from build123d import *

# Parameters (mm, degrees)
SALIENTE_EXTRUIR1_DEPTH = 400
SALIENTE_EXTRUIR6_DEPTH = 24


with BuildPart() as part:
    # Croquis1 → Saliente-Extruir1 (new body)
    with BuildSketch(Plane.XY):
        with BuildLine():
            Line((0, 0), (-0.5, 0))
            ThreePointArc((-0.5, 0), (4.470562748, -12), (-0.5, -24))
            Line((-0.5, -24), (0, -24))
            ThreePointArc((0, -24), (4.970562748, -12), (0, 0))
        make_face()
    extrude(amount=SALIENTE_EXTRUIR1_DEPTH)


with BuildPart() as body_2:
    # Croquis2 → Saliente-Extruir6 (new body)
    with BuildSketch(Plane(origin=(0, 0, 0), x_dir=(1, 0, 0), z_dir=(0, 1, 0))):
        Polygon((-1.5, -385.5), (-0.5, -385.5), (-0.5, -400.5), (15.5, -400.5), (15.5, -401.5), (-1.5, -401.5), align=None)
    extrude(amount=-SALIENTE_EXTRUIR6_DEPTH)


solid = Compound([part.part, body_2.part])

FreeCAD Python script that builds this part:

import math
import FreeCAD as App
import Part
import Sketcher

doc = App.newDocument("Part")
body = doc.addObject("PartDesign::Body", "Body")

# Sketch on XY plane
sketch1 = doc.addObject("Sketcher::SketchObject", "Sketch")
body.addObject(sketch1)
sketch1.AttachmentSupport = (doc.XY_Plane, [""])
sketch1.MapMode = "FlatFace"
sketch1.addGeometry([
    Part.LineSegment(App.Vector(0, 0, 0), App.Vector(-0.5, 0, 0)),
    Part.ArcOfCircle(Part.Circle(App.Vector(-12.5, -12, 0), App.Vector(0, 0, 1), 17), math.radians(-45), math.radians(45)),
    Part.LineSegment(App.Vector(-0.5, -24, 0), App.Vector(0, -24, 0)),
    Part.ArcOfCircle(Part.Circle(App.Vector(-12, -12, 0), App.Vector(0, 0, 1), 17), math.radians(-45), math.radians(45)),
], False)
sketch1.addConstraint([
    Sketcher.Constraint("Coincident", 0, 2, 1, 2),
    Sketcher.Constraint("Coincident", 1, 1, 2, 1),
    Sketcher.Constraint("Coincident", 2, 2, 3, 1),
    Sketcher.Constraint("Coincident", 3, 2, 0, 1),
    Sketcher.Constraint("Horizontal", 0),
    Sketcher.Constraint("Horizontal", 2),
    Sketcher.Constraint("Coincident", 3, 2, -1, 1),
    Sketcher.Constraint("Equal", 1, 3),
    Sketcher.Constraint("PointOnObject", 2, 2, -2),
    Sketcher.Constraint("Horizontal", 1, 3, 3, 3),
    Sketcher.Constraint("DistanceX", 0, 2, 0, 1, 0.5),
    Sketcher.Constraint("DistanceY", 1, 3, -1, 1, 12.0),
    Sketcher.Constraint("DistanceX", 3, 3, -1, 1, 12.0),
])
pad1 = doc.addObject("PartDesign::Pad", "Pad")
body.addObject(pad1)
pad1.Profile = sketch1
pad1.Length = 400
body2 = doc.addObject("PartDesign::Body", "Body001")

# Sketch on XZ plane
sketch2 = doc.addObject("Sketcher::SketchObject", "Sketch001")
body2.addObject(sketch2)
sketch2.AttachmentSupport = (doc.getObject("XZ_Plane001"), [""])
sketch2.MapMode = "FlatFace"
sketch2.addGeometry([
    Part.LineSegment(App.Vector(-0.5, 385.5, 0), App.Vector(-1.5, 385.5, 0)),  # 0
    Part.LineSegment(App.Vector(-1.5, 385.5, 0), App.Vector(-1.5, 401.5, 0)),  # 1
    Part.LineSegment(App.Vector(-1.5, 401.5, 0), App.Vector(15.5, 401.5, 0)),  # 2
    Part.LineSegment(App.Vector(15.5, 401.5, 0), App.Vector(15.5, 400.5, 0)),  # 3
    Part.LineSegment(App.Vector(15.5, 400.5, 0), App.Vector(-0.5, 400.5, 0)),  # 4
    Part.LineSegment(App.Vector(-0.5, 400.5, 0), App.Vector(-0.5, 385.5, 0)),  # 5
], False)
sketch2.addConstraint([
    Sketcher.Constraint("Coincident", 0, 2, 1, 1),
    Sketcher.Constraint("Coincident", 1, 2, 2, 1),
    Sketcher.Constraint("Coincident", 2, 2, 3, 1),
    Sketcher.Constraint("Coincident", 3, 2, 4, 1),
    Sketcher.Constraint("Coincident", 4, 2, 5, 1),
    Sketcher.Constraint("Coincident", 5, 2, 0, 1),
    Sketcher.Constraint("Horizontal", 0),
    Sketcher.Constraint("Vertical", 1),
    Sketcher.Constraint("Horizontal", 2),
    Sketcher.Constraint("Vertical", 3),
    Sketcher.Constraint("Horizontal", 4),
    Sketcher.Constraint("Vertical", 5),
    Sketcher.Constraint("Equal", 4, 1),
    Sketcher.Constraint("Equal", 0, 3),
    Sketcher.Constraint("DistanceX", 0, 2, 0, 1, 1.0),
    Sketcher.Constraint("DistanceX", 2, 1, 2, 2, 17.0),
    Sketcher.Constraint("DistanceX", 0, 2, -1, 1, 1.5),
    Sketcher.Constraint("DistanceY", -1, 1, 0, 2, 385.5),
])
pad2 = doc.addObject("PartDesign::Pad", "Pad001")
body2.addObject(pad2)
pad2.Profile = sketch2
pad2.Length = 24

doc.recompute()
